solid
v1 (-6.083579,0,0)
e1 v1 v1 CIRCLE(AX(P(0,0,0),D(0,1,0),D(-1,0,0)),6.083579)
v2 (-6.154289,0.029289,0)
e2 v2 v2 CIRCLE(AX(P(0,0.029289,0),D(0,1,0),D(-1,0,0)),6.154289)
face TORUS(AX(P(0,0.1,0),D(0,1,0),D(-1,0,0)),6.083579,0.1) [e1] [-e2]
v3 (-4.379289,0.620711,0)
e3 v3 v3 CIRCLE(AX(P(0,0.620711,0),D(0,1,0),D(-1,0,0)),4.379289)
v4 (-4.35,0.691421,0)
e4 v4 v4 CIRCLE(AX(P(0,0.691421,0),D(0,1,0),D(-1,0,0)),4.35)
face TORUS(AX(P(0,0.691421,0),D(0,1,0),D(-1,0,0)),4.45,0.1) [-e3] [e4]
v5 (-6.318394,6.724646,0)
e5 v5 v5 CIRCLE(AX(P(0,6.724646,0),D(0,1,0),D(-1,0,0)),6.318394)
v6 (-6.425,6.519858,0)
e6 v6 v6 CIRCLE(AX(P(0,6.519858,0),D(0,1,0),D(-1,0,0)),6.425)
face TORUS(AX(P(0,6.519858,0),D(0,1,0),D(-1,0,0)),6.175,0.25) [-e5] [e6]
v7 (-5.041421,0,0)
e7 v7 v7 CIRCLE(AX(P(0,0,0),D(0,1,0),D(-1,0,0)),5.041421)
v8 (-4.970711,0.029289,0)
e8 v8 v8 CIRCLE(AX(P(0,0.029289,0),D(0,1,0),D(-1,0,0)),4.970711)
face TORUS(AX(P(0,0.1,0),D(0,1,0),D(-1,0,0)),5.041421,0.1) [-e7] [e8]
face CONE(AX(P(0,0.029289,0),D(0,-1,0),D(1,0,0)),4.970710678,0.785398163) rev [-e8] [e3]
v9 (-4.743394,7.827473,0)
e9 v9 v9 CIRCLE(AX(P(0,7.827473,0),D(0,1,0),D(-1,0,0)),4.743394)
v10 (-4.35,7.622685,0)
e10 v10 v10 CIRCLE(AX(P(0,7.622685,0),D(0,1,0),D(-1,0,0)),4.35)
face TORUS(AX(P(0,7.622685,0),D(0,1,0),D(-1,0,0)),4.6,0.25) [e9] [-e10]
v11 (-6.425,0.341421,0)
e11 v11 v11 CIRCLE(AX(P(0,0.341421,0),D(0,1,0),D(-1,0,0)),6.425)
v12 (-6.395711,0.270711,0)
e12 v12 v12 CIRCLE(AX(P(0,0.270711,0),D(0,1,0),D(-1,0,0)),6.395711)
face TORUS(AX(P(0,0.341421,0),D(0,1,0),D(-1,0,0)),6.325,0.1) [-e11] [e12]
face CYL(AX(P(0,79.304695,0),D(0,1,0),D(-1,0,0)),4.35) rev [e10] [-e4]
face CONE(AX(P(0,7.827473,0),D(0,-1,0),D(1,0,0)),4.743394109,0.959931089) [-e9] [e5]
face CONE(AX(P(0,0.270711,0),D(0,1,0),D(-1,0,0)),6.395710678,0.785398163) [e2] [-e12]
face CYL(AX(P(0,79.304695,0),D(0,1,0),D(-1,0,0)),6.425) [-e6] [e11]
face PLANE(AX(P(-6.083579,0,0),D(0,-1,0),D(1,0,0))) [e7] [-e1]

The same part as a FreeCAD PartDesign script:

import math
import FreeCAD as App
import Part
import Sketcher
from FreeCAD import Vector
Q = App.Units.Quantity

doc = App.newDocument("Part")
body = doc.addObject("PartDesign::Body", "Body")

# Sketch on XY plane
sketch1 = body.newObject("Sketcher::SketchObject", "Sketch")
sketch1.AttachmentSupport = (doc.getObject("XY_Plane"), [""])
sketch1.MapMode = "FlatFace"
sketch1.addGeometry([
    Part.LineSegment(Vector(-4.35, 0.691421, 0), Vector(-4.35, 7.622685, 0)),  # 0
    Part.ArcOfCircle(Part.Circle(Vector(-4.6, 7.622685, 0), Vector(0, 0, 1), 0.25), math.radians(0), math.radians(125)),  # 1
    Part.LineSegment(Vector(-4.743394, 7.827473, 0), Vector(-6.318394, 6.724646, 0)),  # 2
    Part.ArcOfCircle(Part.Circle(Vector(-6.175, 6.519858, 0), Vector(0, 0, 1), 0.25), math.radians(125), math.radians(180)),  # 3
    Part.LineSegment(Vector(-6.425, 6.519858, 0), Vector(-6.425, 0.341421, 0)),  # 4
    Part.ArcOfCircle(Part.Circle(Vector(-6.325, 0.341421, 0), Vector(0, 0, 1), 0.1), math.radians(-179.999999), math.radians(-135.000001)),  # 5
    Part.LineSegment(Vector(-6.395711, 0.270711, 0), Vector(-6.154289, 0.029289, 0)),  # 6
    Part.ArcOfCircle(Part.Circle(Vector(-6.083579, 0.1, 0), Vector(0, 0, 1), 0.1), math.radians(-134.999999), math.radians(-90.000001)),  # 7
    Part.LineSegment(Vector(-6.083579, 0, 0), Vector(-5.041421, 0, 0)),  # 8
    Part.ArcOfCircle(Part.Circle(Vector(-5.041421, 0.1, 0), Vector(0, 0, 1), 0.1), math.radians(-89.999999), math.radians(-45.000001)),  # 9
    Part.LineSegment(Vector(-4.970711, 0.029289, 0), Vector(-4.379289, 0.620711, 0)),  # 10
    Part.ArcOfCircle(Part.Circle(Vector(-4.45, 0.691421, 0), Vector(0, 0, 1), 0.1), math.radians(-44.999999), math.radians(-0.000001)),  # 11
], False)
sketch1.addConstraint([
    Sketcher.Constraint("Tangent", 0, 2, 1, 1),
    Sketcher.Constraint("Tangent", 1, 2, 2, 1),
    Sketcher.Constraint("Tangent", 2, 2, 3, 1),
    Sketcher.Constraint("Tangent", 3, 2, 4, 1),
    Sketcher.Constraint("Tangent", 4, 2, 5, 1),
    Sketcher.Constraint("Tangent", 5, 2, 6, 1),
    Sketcher.Constraint("Tangent", 6, 2, 7, 1),
    Sketcher.Constraint("Tangent", 7, 2, 8, 1),
    Sketcher.Constraint("Tangent", 8, 2, 9, 1),
    Sketcher.Constraint("Tangent", 9, 2, 10, 1),
    Sketcher.Constraint("Tangent", 10, 2, 11, 1),
    Sketcher.Constraint("Tangent", 11, 2, 0, 1),
    Sketcher.Constraint("Vertical", 0),
    Sketcher.Constraint("Vertical", 4),
    Sketcher.Constraint("Horizontal", 8),
    Sketcher.Constraint("Equal", 1, 3),
    Sketcher.Constraint("Equal", 5, 7),
    Sketcher.Constraint("Equal", 7, 9),
    Sketcher.Constraint("Equal", 9, 11),
    Sketcher.Constraint("PointOnObject", 7, 2, -1),
    Sketcher.Constraint("Perpendicular", 6, 10),
    Sketcher.Constraint("Horizontal", 6, 2, 9, 2),
    Sketcher.Constraint("Radius", 5, 0.1),
    Sketcher.Constraint("Angle", 2, Q("-145 deg")),
    Sketcher.Constraint("Radius", 1, 0.25),
    Sketcher.Constraint("DistanceX", 1, 3, -1, 1, 4.6),
    Sketcher.Constraint("DistanceY", 5, 3, 11, 3, 0.35),
    Sketcher.Constraint("DistanceX", 3, 3, -1, 1, 6.175),
    Sketcher.Constraint("Distance", 6, 0.341421),
    Sketcher.Constraint("DistanceY", 0, 1, 0, 2, 6.931264),
])
revolution = body.newObject("PartDesign::Revolution", "Revolution")
revolution.Profile = sketch1
revolution.ReferenceAxis = (sketch1, ["V_Axis"])
revolution.Angle = 360

doc.recompute()
